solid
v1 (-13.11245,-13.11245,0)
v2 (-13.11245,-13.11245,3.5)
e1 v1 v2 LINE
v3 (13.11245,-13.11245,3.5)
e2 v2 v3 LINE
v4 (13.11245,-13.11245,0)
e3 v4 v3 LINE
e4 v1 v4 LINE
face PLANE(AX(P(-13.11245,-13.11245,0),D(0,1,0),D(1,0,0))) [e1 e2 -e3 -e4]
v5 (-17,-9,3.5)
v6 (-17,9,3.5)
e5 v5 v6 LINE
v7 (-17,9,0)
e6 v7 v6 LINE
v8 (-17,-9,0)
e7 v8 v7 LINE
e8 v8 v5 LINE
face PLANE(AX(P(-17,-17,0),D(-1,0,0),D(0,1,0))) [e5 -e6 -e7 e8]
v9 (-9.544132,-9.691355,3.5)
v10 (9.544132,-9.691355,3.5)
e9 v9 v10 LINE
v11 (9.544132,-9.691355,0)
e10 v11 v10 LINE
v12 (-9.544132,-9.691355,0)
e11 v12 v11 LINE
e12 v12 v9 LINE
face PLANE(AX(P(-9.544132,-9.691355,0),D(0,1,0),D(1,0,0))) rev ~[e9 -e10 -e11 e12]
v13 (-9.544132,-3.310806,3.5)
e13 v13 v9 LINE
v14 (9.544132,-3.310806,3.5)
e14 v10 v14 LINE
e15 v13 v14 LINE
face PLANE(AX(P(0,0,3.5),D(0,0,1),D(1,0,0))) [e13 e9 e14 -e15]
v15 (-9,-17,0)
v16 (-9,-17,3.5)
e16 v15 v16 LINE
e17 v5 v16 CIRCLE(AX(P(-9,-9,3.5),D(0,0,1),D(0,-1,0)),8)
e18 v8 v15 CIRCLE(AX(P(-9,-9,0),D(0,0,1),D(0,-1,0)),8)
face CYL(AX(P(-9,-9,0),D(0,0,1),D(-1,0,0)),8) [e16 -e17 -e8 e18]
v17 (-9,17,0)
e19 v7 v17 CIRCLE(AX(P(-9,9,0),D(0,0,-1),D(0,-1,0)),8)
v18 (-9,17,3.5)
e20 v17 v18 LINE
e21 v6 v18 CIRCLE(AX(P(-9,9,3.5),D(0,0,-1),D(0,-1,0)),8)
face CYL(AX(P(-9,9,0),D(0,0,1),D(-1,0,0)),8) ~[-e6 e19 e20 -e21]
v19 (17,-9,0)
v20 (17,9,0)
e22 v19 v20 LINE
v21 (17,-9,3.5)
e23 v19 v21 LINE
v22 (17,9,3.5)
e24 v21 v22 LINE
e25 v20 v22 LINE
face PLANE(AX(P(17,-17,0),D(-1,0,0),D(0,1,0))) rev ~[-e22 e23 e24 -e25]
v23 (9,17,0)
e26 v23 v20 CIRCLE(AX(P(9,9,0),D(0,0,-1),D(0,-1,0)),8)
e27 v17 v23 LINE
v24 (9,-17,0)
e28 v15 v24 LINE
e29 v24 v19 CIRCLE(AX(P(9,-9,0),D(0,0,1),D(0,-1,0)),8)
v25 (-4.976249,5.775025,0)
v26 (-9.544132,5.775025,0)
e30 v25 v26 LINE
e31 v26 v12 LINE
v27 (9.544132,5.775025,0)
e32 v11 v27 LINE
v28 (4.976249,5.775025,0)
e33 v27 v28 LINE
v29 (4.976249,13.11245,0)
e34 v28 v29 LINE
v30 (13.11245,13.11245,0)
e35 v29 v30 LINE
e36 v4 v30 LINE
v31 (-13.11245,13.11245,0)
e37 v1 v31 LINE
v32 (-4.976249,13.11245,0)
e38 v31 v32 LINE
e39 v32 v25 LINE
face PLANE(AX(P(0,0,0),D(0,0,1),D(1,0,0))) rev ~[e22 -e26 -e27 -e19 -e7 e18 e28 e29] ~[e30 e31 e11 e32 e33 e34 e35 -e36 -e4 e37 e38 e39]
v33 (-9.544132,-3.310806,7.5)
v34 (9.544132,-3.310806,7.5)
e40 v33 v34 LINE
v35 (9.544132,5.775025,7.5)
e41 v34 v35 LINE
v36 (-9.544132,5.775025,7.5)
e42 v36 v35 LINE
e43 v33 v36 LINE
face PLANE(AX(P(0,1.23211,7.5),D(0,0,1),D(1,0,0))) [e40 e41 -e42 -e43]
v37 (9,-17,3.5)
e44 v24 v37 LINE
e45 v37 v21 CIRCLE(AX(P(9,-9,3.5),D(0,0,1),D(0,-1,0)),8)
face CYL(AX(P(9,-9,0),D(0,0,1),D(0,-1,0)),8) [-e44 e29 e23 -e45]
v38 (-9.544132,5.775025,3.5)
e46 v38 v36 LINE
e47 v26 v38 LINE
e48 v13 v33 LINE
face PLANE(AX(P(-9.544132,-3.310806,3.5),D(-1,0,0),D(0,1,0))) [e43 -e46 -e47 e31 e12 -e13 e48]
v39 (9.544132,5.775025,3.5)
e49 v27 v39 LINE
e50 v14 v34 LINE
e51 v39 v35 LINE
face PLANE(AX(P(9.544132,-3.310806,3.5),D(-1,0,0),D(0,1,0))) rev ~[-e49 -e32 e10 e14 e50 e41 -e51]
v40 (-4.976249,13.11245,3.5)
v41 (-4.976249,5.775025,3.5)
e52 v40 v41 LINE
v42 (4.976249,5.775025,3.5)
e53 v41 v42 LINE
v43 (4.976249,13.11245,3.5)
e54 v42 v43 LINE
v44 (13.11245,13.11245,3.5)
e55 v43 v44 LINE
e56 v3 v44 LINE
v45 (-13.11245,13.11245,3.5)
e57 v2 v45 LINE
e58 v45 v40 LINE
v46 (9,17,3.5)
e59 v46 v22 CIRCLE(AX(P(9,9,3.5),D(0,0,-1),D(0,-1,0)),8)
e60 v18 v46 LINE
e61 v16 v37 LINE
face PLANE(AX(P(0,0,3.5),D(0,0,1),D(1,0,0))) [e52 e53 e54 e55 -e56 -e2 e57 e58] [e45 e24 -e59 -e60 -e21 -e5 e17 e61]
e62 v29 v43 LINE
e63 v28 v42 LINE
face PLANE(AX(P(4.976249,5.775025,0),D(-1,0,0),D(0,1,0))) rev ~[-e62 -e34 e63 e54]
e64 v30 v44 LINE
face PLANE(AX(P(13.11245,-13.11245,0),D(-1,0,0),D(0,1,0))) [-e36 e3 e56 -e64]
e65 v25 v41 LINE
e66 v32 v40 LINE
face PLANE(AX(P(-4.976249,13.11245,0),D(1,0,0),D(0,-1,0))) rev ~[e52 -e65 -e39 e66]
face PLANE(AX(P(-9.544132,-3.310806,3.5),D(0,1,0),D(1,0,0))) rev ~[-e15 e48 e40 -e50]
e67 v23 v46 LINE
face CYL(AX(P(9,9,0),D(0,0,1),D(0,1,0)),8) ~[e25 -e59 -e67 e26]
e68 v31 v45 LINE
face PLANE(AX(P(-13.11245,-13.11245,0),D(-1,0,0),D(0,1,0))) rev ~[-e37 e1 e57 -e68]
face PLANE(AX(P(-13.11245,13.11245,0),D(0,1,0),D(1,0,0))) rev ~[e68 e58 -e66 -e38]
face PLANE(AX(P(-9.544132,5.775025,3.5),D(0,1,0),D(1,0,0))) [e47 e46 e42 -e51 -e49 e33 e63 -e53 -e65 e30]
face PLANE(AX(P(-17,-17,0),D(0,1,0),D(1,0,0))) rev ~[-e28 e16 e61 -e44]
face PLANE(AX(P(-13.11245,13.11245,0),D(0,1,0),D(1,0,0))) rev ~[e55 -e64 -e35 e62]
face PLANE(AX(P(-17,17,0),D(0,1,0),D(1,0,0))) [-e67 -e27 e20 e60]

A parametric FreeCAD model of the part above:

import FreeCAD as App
import Part
import Sketcher

V = App.Vector
Q = App.Units.Quantity


def edges_at(feature, points):
    """Names of the edges that pass closest to the given points."""
    edges = feature.Shape.Edges
    near = lambda p: min(range(len(edges)), key=lambda i: edges[i].distToShape(Part.Vertex(*p))[0])
    return sorted({f"Edge{near(p) + 1}" for p in points})


def add_polygon(sketch, points):
    """Adds a closed chain of lines whose ends are joined by coincident constraints."""
    first, n = sketch.GeometryCount, len(points)
    for a, b in zip(points, points[1:] + points[:1]):
        sketch.addGeometry(Part.LineSegment(App.Vector(*a, 0), App.Vector(*b, 0)), False)
    for i in range(n):
        sketch.addConstraint(Sketcher.Constraint("Coincident", first + i, 2, first + (i + 1) % n, 1))

doc = App.newDocument("Part")
params = doc.addObject("Spreadsheet::Sheet", "Params")
for row, (alias, value) in enumerate([
    ("sketch1_width", "34 mm"),
    ("pad1_length", "3.5 mm"),
    ("pad2_length", "4 mm"),
    ("fillet_radius", "8 mm"),
], start=1):
    params.set(f"A{row}", alias)
    params.set(f"B{row}", "=" + value)
    params.setAlias(f"B{row}", alias)

body = doc.addObject("PartDesign::Body", "Body")

sketch1 = body.newObject("Sketcher::SketchObject", "Sketch")
sketch1.AttachmentSupport = (doc.getObject("XY_Plane"), [""])
sketch1.MapMode = "FlatFace"
add_polygon(sketch1, [(-17, 17), (-17, -17), (17, -17), (17, 17)])
add_polygon(sketch1, [(13.1, -13.1), (-13.1, -13.1), (-13.1, 13.1), (-5, 13.1), (-5, 5.8), (-9.5, 5.8), (-9.5, -9.7), (9.5, -9.7), (9.5, 5.8), (5, 5.8), (5, 13.1), (13.1, 13.1)])
sketch1.addConstraint([
    Sketcher.Constraint("Vertical", 0),
    Sketcher.Constraint("Horizontal", 1),
    Sketcher.Constraint("Vertical", 2),
    Sketcher.Constraint("Horizontal", 3),
    Sketcher.Constraint("Horizontal", 4),
    Sketcher.Constraint("Vertical", 5),
    Sketcher.Constraint("Horizontal", 6),
    Sketcher.Constraint("Vertical", 7),
    Sketcher.Constraint("Horizontal", 8),
    Sketcher.Constraint("Vertical", 9),
    Sketcher.Constraint("Horizontal", 10),
    Sketcher.Constraint("Vertical", 11),
    Sketcher.Constraint("Horizontal", 12),
    Sketcher.Constraint("Vertical", 13),
    Sketcher.Constraint("Horizontal", 14),
    Sketcher.Constraint("Vertical", 15),
    Sketcher.Constraint("Symmetric", 0, 2, 2, 2, -1, 1),
    Sketcher.Constraint("Symmetric", 4, 2, 14, 2, -1, 1),
    Sketcher.Constraint("Symmetric", 8, 2, 11, 2, -2),
    Sketcher.Constraint("Symmetric", 6, 2, 13, 2, -2),
    Sketcher.Constraint("Equal", 3, 0),
    Sketcher.Constraint("Equal", 4, 5),
    Sketcher.Constraint("DistanceX", 1, 1, 1, 2, Q("34 mm")),
    Sketcher.Constraint("DistanceX", 4, 2, 4, 1, Q("26.2249 mm")),
    Sketcher.Constraint("DistanceX", 6, 1, 6, 2, Q("8.136201 mm")),
    Sketcher.Constraint("DistanceY", 9, 2, 9, 1, Q("15.46638 mm")),
    Sketcher.Constraint("DistanceX", 8, 2, 8, 1, Q("4.567883 mm")),
    Sketcher.Constraint("DistanceY", 7, 2, 7, 1, Q("7.337424 mm")),
])
sketch1.setExpression("Constraints[38]", "Params.sketch1_width")
pad1 = body.newObject("PartDesign::Pad", "Pad")
pad1.Profile = sketch1
pad1.setExpression("Length", "Params.pad1_length")

sketch2 = body.newObject("Sketcher::SketchObject", "Sketch001")
sketch2.AttachmentSupport = (doc.getObject("XY_Plane"), [""])
sketch2.MapMode = "FlatFace"
sketch2.AttachmentOffset = App.Placement(V(0, 0, 3.5), App.Rotation())
add_polygon(sketch2, [(-10, 6), (-10, -3), (10, -3), (10, 6)])
sketch2.addConstraint([
    Sketcher.Constraint("Vertical", 0),
    Sketcher.Constraint("Horizontal", 1),
    Sketcher.Constraint("Vertical", 2),
    Sketcher.Constraint("Horizontal", 3),
    Sketcher.Constraint("DistanceY", 0, 2, 0, 1, Q("9.085831 mm")),
    Sketcher.Constraint("DistanceX", 1, 1, 1, 2, Q("19.088265 mm")),
    Sketcher.Constraint("DistanceX", 0, 2, -1, 1, Q("9.544132 mm")),
    Sketcher.Constraint("DistanceY", 0, 2, -1, 1, Q("3.310806 mm")),
])
pad2 = body.newObject("PartDesign::Pad", "Pad001")
pad2.Profile = sketch2
pad2.setExpression("Length", "Params.pad2_length")
doc.recompute()

fillet = body.newObject("PartDesign::Fillet", "Fillet")
fillet.Base = (pad2, edges_at(pad2, [
    (-17, 17, 1.75),
    (17, 17, 1.75),
    (17, -17, 1.75),
    (-17, -17, 1.75),
]))
fillet.setExpression("Radius", "Params.fillet_radius")

doc.recompute()
